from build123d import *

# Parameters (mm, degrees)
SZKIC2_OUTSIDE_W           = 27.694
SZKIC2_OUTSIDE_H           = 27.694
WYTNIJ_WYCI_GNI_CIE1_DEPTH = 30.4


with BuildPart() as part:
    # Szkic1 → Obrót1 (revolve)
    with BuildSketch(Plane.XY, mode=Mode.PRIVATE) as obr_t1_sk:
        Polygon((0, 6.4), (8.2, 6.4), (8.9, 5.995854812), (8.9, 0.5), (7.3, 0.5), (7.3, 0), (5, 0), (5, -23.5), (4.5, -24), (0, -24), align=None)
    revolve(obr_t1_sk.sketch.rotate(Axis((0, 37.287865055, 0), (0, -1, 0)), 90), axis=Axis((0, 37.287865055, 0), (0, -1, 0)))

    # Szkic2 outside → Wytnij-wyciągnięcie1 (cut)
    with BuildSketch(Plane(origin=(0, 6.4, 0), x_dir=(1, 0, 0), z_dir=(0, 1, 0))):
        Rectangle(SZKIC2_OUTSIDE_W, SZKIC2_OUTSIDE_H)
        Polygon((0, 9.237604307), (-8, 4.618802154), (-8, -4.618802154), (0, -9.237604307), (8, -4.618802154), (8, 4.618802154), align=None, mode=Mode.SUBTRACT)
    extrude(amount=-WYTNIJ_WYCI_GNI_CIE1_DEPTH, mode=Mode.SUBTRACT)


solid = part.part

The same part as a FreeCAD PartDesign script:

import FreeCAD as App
import Part
import Sketcher
Q = App.Units.Quantity

doc = App.newDocument("Part")
body = doc.addObject("PartDesign::Body", "Body")

sketch1 = doc.addObject("Sketcher::SketchObject", "Sketch")
body.addObject(sketch1)
sketch1.AttachmentSupport = (doc.XY_Plane, [""])
sketch1.MapMode = "FlatFace"
sketch1.addGeometry([
    Part.LineSegment(App.Vector(8.2, 6.4, 0), App.Vector(0, 6.4, 0)),
    Part.LineSegment(App.Vector(0, 6.4, 0), App.Vector(0, -24, 0)),
    Part.LineSegment(App.Vector(0, -24, 0), App.Vector(4.5, -24, 0)),
    Part.LineSegment(App.Vector(4.5, -24, 0), App.Vector(5, -23.5, 0)),
    Part.LineSegment(App.Vector(5, -23.5, 0), App.Vector(5, 0, 0)),
    Part.LineSegment(App.Vector(5, 0, 0), App.Vector(7.3, 0, 0)),
    Part.LineSegment(App.Vector(7.3, 0, 0), App.Vector(7.3, 0.5, 0)),
    Part.LineSegment(App.Vector(7.3, 0.5, 0), App.Vector(8.9, 0.5, 0)),
    Part.LineSegment(App.Vector(8.9, 0.5, 0), App.Vector(8.9, 6, 0)),
    Part.LineSegment(App.Vector(8.9, 6, 0), App.Vector(8.2, 6.4, 0)),
], False)
sketch1.addConstraint([
    Sketcher.Constraint("Coincident", 0, 2, 1, 1),
    Sketcher.Constraint("Coincident", 1, 2, 2, 1),
    Sketcher.Constraint("Coincident", 2, 2, 3, 1),
    Sketcher.Constraint("Coincident", 3, 2, 4, 1),
    Sketcher.Constraint("Coincident", 4, 2, 5, 1),
    Sketcher.Constraint("Coincident", 5, 2, 6, 1),
    Sketcher.Constraint("Coincident", 6, 2, 7, 1),
    Sketcher.Constraint("Coincident", 7, 2, 8, 1),
    Sketcher.Constraint("Coincident", 8, 2, 9, 1),
    Sketcher.Constraint("Coincident", 9, 2, 0, 1),
    Sketcher.Constraint("Horizontal", 0),
    Sketcher.Constraint("Vertical", 1),
    Sketcher.Constraint("Horizontal", 2),
    Sketcher.Constraint("Vertical", 4),
    Sketcher.Constraint("Horizontal", 5),
    Sketcher.Constraint("Vertical", 6),
    Sketcher.Constraint("Horizontal", 7),
    Sketcher.Constraint("Vertical", 8),
    Sketcher.Constraint("PointOnObject", 0, 2, -2),
    Sketcher.Constraint("PointOnObject", 4, 2, -1),
    Sketcher.Constraint("Angle", 3, Q("45 deg")),
    Sketcher.Constraint("Angle", 9, Q("150 deg")),
    Sketcher.Constraint("DistanceX", 0, 2, 0, 1, Q("8.2 mm")),
    Sketcher.Constraint("DistanceX", 2, 1, 2, 2, Q("4.5 mm")),
    Sketcher.Constraint("DistanceX", 5, 1, 5, 2, Q("2.3 mm")),
    Sketcher.Constraint("DistanceX", 7, 1, 7, 2, Q("1.6 mm")),
    Sketcher.Constraint("DistanceY", 1, 2, 1, 1, Q("30.4 mm")),
    Sketcher.Constraint("DistanceY", 4, 1, 4, 2, Q("23.5 mm")),
    Sketcher.Constraint("DistanceY", 6, 1, 6, 2, Q("0.5 mm")),
    Sketcher.Constraint("DistanceY", 1, 2, -1, 1, Q("24 mm")),
])
revolution = doc.addObject("PartDesign::Revolution", "Revolution")
body.addObject(revolution)
revolution.Profile = sketch1
revolution.ReferenceAxis = (sketch1, ["V_Axis"])
revolution.Angle = 360

sketch2 = doc.addObject("Sketcher::SketchObject", "Sketch001")
body.addObject(sketch2)
sketch2.AttachmentSupport = (doc.XZ_Plane, [""])
sketch2.MapMode = "FlatFace"
sketch2.AttachmentOffset = App.Placement(App.Vector(0, 0, -6.4), App.Rotation())
sketch2.addGeometry([
    Part.LineSegment(App.Vector(-14, -14, 0), App.Vector(-14, 14, 0)),
    Part.LineSegment(App.Vector(-14, 14, 0), App.Vector(14, 14, 0)),
    Part.LineSegment(App.Vector(14, 14, 0), App.Vector(14, -14, 0)),
    Part.LineSegment(App.Vector(14, -14, 0), App.Vector(-14, -14, 0)),
    Part.LineSegment(App.Vector(-8, -5, 0), App.Vector(0, -9, 0)),
    Part.LineSegment(App.Vector(0, -9, 0), App.Vector(8, -5, 0)),
    Part.LineSegment(App.Vector(8, -5, 0), App.Vector(8, 5, 0)),
    Part.LineSegment(App.Vector(8, 5, 0), App.Vector(0, 9, 0)),
    Part.LineSegment(App.Vector(0, 9, 0), App.Vector(-8, 5, 0)),
    Part.LineSegment(App.Vector(-8, 5, 0), App.Vector(-8, -5, 0)),
], False)
sketch2.addConstraint([
    Sketcher.Constraint("Coincident", 0, 2, 1, 1),
    Sketcher.Constraint("Coincident", 1, 2, 2, 1),
    Sketcher.Constraint("Coincident", 2, 2, 3, 1),
    Sketcher.Constraint("Coincident", 3, 2, 0, 1),
    Sketcher.Constraint("Coincident", 4, 2, 5, 1),
    Sketcher.Constraint("Coincident", 5, 2, 6, 1),
    Sketcher.Constraint("Coincident", 6, 2, 7, 1),
    Sketcher.Constraint("Coincident", 7, 2, 8, 1),
    Sketcher.Constraint("Coincident", 8, 2, 9, 1),
    Sketcher.Constraint("Coincident", 9, 2, 4, 1),
    Sketcher.Constraint("Vertical", 0),
    Sketcher.Constraint("Horizontal", 1),
    Sketcher.Constraint("Vertical", 2),
    Sketcher.Constraint("Horizontal", 3),
    Sketcher.Constraint("Vertical", 6),
    Sketcher.Constraint("Vertical", 9),
    Sketcher.Constraint("Symmetric", 0, 2, 2, 2, -1, 1),
    Sketcher.Constraint("Symmetric", 4, 2, 7, 2, -1, 1),
    Sketcher.Constraint("Symmetric", 5, 2, 8, 2, -1, 1),
    Sketcher.Constraint("PointOnObject", 4, 2, -2),
    Sketcher.Constraint("Parallel", 4, 7),
    Sketcher.Constraint("Horizontal", 6, 2, 8, 2),
    Sketcher.Constraint("Equal", 3, 0),
    Sketcher.Constraint("Angle", 4, Q("-30 deg")),
    Sketcher.Constraint("DistanceX", -1, 1, 5, 2, Q("8 mm")),
    Sketcher.Constraint("DistanceX", 1, 1, 1, 2, Q("27.694 mm")),
    Sketcher.Constraint("DistanceY", 6, 1, 6, 2, Q("9.237604 mm")),
])
pocket1 = doc.addObject("PartDesign::Pocket", "Pocket")
body.addObject(pocket1)
pocket1.Profile = sketch2
pocket1.Length = 30.4
pocket1.Reversed = True

doc.recompute()
